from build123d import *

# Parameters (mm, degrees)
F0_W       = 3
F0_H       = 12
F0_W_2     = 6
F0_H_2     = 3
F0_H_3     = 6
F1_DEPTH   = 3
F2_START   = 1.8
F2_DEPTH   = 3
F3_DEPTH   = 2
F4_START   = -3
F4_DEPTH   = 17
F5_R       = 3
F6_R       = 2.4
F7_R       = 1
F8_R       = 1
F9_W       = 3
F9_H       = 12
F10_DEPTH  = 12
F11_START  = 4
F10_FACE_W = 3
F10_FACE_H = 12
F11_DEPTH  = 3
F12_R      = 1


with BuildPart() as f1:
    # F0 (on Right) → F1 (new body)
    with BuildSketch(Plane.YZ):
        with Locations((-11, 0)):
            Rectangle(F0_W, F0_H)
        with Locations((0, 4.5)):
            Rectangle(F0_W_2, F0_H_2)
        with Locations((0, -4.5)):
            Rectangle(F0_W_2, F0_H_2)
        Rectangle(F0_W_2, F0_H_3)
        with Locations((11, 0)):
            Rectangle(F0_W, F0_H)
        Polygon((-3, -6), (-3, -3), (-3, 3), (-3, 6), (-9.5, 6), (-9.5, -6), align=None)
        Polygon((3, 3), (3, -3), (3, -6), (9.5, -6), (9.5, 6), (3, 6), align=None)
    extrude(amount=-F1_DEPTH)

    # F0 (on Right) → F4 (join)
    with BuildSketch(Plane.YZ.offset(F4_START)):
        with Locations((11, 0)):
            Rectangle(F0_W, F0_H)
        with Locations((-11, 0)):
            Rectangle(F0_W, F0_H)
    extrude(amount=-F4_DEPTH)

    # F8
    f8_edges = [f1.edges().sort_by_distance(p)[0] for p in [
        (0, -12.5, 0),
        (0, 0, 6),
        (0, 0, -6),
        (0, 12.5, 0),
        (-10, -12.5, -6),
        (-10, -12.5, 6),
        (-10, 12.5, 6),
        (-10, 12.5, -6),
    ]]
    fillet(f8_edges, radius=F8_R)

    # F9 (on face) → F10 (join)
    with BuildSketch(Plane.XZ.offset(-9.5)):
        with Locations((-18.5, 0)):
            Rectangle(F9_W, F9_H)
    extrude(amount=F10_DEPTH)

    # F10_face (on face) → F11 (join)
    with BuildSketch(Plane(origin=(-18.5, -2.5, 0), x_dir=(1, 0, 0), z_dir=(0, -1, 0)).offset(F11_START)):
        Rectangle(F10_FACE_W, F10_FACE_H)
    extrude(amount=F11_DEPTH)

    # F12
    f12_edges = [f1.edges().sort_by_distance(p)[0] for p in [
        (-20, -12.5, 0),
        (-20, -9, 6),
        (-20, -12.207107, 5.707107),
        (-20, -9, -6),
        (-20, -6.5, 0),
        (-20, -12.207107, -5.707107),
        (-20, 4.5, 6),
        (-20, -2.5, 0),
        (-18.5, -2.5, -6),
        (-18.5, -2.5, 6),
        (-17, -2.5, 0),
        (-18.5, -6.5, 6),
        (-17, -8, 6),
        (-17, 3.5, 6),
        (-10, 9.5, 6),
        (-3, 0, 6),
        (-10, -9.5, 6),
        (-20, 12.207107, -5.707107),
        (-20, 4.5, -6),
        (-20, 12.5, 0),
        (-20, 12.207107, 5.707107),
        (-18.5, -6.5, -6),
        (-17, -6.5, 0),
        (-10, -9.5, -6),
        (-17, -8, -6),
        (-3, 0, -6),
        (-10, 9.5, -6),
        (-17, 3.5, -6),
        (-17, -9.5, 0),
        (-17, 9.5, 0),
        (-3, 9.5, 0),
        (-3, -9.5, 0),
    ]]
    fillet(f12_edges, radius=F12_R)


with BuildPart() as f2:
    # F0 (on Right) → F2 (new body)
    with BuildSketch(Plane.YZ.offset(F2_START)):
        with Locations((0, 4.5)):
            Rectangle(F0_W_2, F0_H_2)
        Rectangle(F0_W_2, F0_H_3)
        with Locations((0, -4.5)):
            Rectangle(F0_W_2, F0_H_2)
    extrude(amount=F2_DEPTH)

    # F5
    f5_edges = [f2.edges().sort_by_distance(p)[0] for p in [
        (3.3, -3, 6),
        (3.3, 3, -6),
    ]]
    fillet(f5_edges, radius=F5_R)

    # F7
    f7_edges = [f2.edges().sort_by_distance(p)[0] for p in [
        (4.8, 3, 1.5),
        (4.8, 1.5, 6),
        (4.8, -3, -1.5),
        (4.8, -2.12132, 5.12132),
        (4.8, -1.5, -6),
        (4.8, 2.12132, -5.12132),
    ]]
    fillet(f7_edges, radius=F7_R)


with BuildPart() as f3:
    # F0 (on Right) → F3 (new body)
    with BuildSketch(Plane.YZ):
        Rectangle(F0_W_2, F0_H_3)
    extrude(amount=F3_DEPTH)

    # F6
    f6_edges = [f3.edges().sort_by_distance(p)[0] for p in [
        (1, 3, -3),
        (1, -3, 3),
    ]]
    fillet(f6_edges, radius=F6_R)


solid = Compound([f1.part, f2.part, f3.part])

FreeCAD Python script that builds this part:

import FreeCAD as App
import Part
import Sketcher

V = App.Vector
Q = App.Units.Quantity


def edges_at(feature, points):
    """Names of the edges that pass closest to the given points."""
    edges = feature.Shape.Edges
    near = lambda p: min(range(len(edges)), key=lambda i: edges[i].distToShape(Part.Vertex(*p))[0])
    return sorted({f"Edge{near(p) + 1}" for p in points})

doc = App.newDocument("Part")
body = doc.addObject("PartDesign::Body", "Body")

# Sketch on YZ plane
sketch1 = body.newObject("Sketcher::SketchObject", "Sketch")
sketch1.AttachmentSupport = (doc.getObject("YZ_Plane"), [""])
sketch1.MapMode = "FlatFace"
sketch1.addGeometry(Part.LineSegment(V(-12, 6, 0), V(-12, -6, 0)), False)
sketch1.addGeometry(Part.LineSegment(V(-12, -6, 0), V(12, -6, 0)), False)
sketch1.addGeometry(Part.LineSegment(V(12, -6, 0), V(12, 6, 0)), False)
sketch1.addGeometry(Part.LineSegment(V(12, 6, 0), V(-12, 6, 0)), False)
sketch1.addConstraint(Sketcher.Constraint("Coincident", 0, 2, 1, 1))
sketch1.addConstraint(Sketcher.Constraint("Coincident", 1, 2, 2, 1))
sketch1.addConstraint(Sketcher.Constraint("Coincident", 2, 2, 3, 1))
sketch1.addConstraint(Sketcher.Constraint("Coincident", 3, 2, 0, 1))
sketch1.addConstraint(Sketcher.Constraint("Vertical", 0))
sketch1.addConstraint(Sketcher.Constraint("Horizontal", 1))
sketch1.addConstraint(Sketcher.Constraint("Vertical", 2))
sketch1.addConstraint(Sketcher.Constraint("Horizontal", 3))
sketch1.addConstraint(Sketcher.Constraint("Symmetric", 0, 2, 2, 2, -1, 1))
sketch1.addConstraint(Sketcher.Constraint("DistanceX", 1, 1, 1, 2, Q("25 mm")))
sketch1.addConstraint(Sketcher.Constraint("DistanceY", 0, 2, 0, 1, Q("12 mm")))
pad1 = body.newObject("PartDesign::Pad", "Pad")
pad1.Profile = sketch1
pad1.Length = 3
pad1.Reversed = True

# Sketch on YZ plane
sketch2 = body.newObject("Sketcher::SketchObject", "Sketch001")
sketch2.AttachmentSupport = (doc.getObject("YZ_Plane"), [""])
sketch2.MapMode = "FlatFace"
sketch2.AttachmentOffset = App.Placement(V(0, 0, -3), App.Rotation())
sketch2.addGeometry(Part.LineSegment(V(9.5, 6, 0), V(9.5, -6, 0)), False)
sketch2.addGeometry(Part.LineSegment(V(9.5, -6, 0), V(12.5, -6, 0)), False)
sketch2.addGeometry(Part.LineSegment(V(12.5, -6, 0), V(12.5, 6, 0)), False)
sketch2.addGeometry(Part.LineSegment(V(12.5, 6, 0), V(9.5, 6, 0)), False)
sketch2.addGeometry(Part.LineSegment(V(-12.5, 6, 0), V(-12.5, -6, 0)), False)
sketch2.addGeometry(Part.LineSegment(V(-12.5, -6, 0), V(-9.5, -6, 0)), False)
sketch2.addGeometry(Part.LineSegment(V(-9.5, -6, 0), V(-9.5, 6, 0)), False)
sketch2.addGeometry(Part.LineSegment(V(-9.5, 6, 0), V(-12.5, 6, 0)), False)
sketch2.addConstraint(Sketcher.Constraint("Coincident", 0, 2, 1, 1))
sketch2.addConstraint(Sketcher.Constraint("Coincident", 1, 2, 2, 1))
sketch2.addConstraint(Sketcher.Constraint("Coincident", 2, 2, 3, 1))
sketch2.addConstraint(Sketcher.Constraint("Coincident", 3, 2, 0, 1))
sketch2.addConstraint(Sketcher.Constraint("Coincident", 4, 2, 5, 1))
sketch2.addConstraint(Sketcher.Constraint("Coincident", 5, 2, 6, 1))
sketch2.addConstraint(Sketcher.Constraint("Coincident", 6, 2, 7, 1))
sketch2.addConstraint(Sketcher.Constraint("Coincident", 7, 2, 4, 1))
sketch2.addConstraint(Sketcher.Constraint("Vertical", 0))
sketch2.addConstraint(Sketcher.Constraint("Horizontal", 1))
sketch2.addConstraint(Sketcher.Constraint("Vertical", 2))
sketch2.addConstraint(Sketcher.Constraint("Horizontal", 3))
sketch2.addConstraint(Sketcher.Constraint("Vertical", 4))
sketch2.addConstraint(Sketcher.Constraint("Horizontal", 5))
sketch2.addConstraint(Sketcher.Constraint("Vertical", 6))
sketch2.addConstraint(Sketcher.Constraint("Horizontal", 7))
sketch2.addConstraint(Sketcher.Constraint("Symmetric", 2, 2, 4, 2, -1, 1))
sketch2.addConstraint(Sketcher.Constraint("Symmetric", 0, 2, 6, 2, -1, 1))
sketch2.addConstraint(Sketcher.Constraint("Horizontal", 1, 2, 4, 2))
sketch2.addConstraint(Sketcher.Constraint("DistanceX", 1, 1, 1, 2, Q("3 mm")))
sketch2.addConstraint(Sketcher.Constraint("DistanceY", 0, 2, 0, 1, Q("12 mm")))
sketch2.addConstraint(Sketcher.Constraint("DistanceX", 4, 2, 0, 2, Q("22 mm")))
pad2 = body.newObject("PartDesign::Pad", "Pad001")
pad2.Profile = sketch2
pad2.Length = 17
pad2.Reversed = True
doc.recompute()

fillet = body.newObject("PartDesign::Fillet", "Fillet")
fillet.Base = (pad2, edges_at(pad2, [
    (0, -12.5, 0),
    (0, 0, 6),
    (0, 0, -6),
    (0, 12.5, 0),
    (-10, -12.5, -6),
    (-10, -12.5, 6),
    (-10, 12.5, 6),
    (-10, 12.5, -6),
]))
fillet.Radius = 1

# Sketch on XZ plane
sketch3 = body.newObject("Sketcher::SketchObject", "Sketch002")
sketch3.AttachmentSupport = (doc.getObject("XZ_Plane"), [""])
sketch3.MapMode = "FlatFace"
sketch3.AttachmentOffset = App.Placement(V(0, 0, -9.5), App.Rotation())
sketch3.addGeometry(Part.LineSegment(V(-20, 6, 0), V(-20, -6, 0)), False)
sketch3.addGeometry(Part.LineSegment(V(-20, -6, 0), V(-17, -6, 0)), False)
sketch3.addGeometry(Part.LineSegment(V(-17, -6, 0), V(-17, 6, 0)), False)
sketch3.addGeometry(Part.LineSegment(V(-17, 6, 0), V(-20, 6, 0)), False)
sketch3.addConstraint(Sketcher.Constraint("Coincident", 0, 2, 1, 1))
sketch3.addConstraint(Sketcher.Constraint("Coincident", 1, 2, 2, 1))
sketch3.addConstraint(Sketcher.Constraint("Coincident", 2, 2, 3, 1))
sketch3.addConstraint(Sketcher.Constraint("Coincident", 3, 2, 0, 1))
sketch3.addConstraint(Sketcher.Constraint("Vertical", 0))
sketch3.addConstraint(Sketcher.Constraint("Horizontal", 1))
sketch3.addConstraint(Sketcher.Constraint("Vertical", 2))
sketch3.addConstraint(Sketcher.Constraint("Horizontal", 3))
sketch3.addConstraint(Sketcher.Constraint("DistanceX", 1, 1, 1, 2, Q("3 mm")))
sketch3.addConstraint(Sketcher.Constraint("DistanceY", 0, 2, 0, 1, Q("12 mm")))
sketch3.addConstraint(Sketcher.Constraint("DistanceX", 0, 2, -1, 1, Q("20 mm")))
sketch3.addConstraint(Sketcher.Constraint("DistanceY", 0, 2, -1, 1, Q("6 mm")))
pad3 = body.newObject("PartDesign::Pad", "Pad002")
pad3.Profile = sketch3
pad3.Length = 12

# Sketch on XZ plane
sketch4 = body.newObject("Sketcher::SketchObject", "Sketch003")
sketch4.AttachmentSupport = (doc.getObject("XZ_Plane"), [""])
sketch4.MapMode = "FlatFace"
sketch4.AttachmentOffset = App.Placement(V(0, 0, 6.5), App.Rotation())
sketch4.addGeometry(Part.LineSegment(V(-20, 6, 0), V(-20, -6, 0)), False)
sketch4.addGeometry(Part.LineSegment(V(-20, -6, 0), V(-17, -6, 0)), False)
sketch4.addGeometry(Part.LineSegment(V(-17, -6, 0), V(-17, 6, 0)), False)
sketch4.addGeometry(Part.LineSegment(V(-17, 6, 0), V(-20, 6, 0)), False)
sketch4.addConstraint(Sketcher.Constraint("Coincident", 0, 2, 1, 1))
sketch4.addConstraint(Sketcher.Constraint("Coincident", 1, 2, 2, 1))
sketch4.addConstraint(Sketcher.Constraint("Coincident", 2, 2, 3, 1))
sketch4.addConstraint(Sketcher.Constraint("Coincident", 3, 2, 0, 1))
sketch4.addConstraint(Sketcher.Constraint("Vertical", 0))
sketch4.addConstraint(Sketcher.Constraint("Horizontal", 1))
sketch4.addConstraint(Sketcher.Constraint("Vertical", 2))
sketch4.addConstraint(Sketcher.Constraint("Horizontal", 3))
sketch4.addConstraint(Sketcher.Constraint("DistanceX", 1, 1, 1, 2, Q("3 mm")))
sketch4.addConstraint(Sketcher.Constraint("DistanceY", 0, 2, 0, 1, Q("12 mm")))
sketch4.addConstraint(Sketcher.Constraint("DistanceX", 0, 2, -1, 1, Q("20 mm")))
sketch4.addConstraint(Sketcher.Constraint("DistanceY", 0, 2, -1, 1, Q("6 mm")))
pad4 = body.newObject("PartDesign::Pad", "Pad003")
pad4.Profile = sketch4
pad4.Length = 3
doc.recompute()

fillet2 = body.newObject("PartDesign::Fillet", "Fillet001")
fillet2.Base = (pad4, edges_at(pad4, [
    (-20, -12.5, 0),
    (-20, -9, 6),
    (-20, -12.207, 5.707),
    (-20, -9, -6),
    (-20, -6.5, 0),
    (-20, -12.207, -5.707),
    (-20, 4.5, 6),
    (-20, -2.5, 0),
    (-18.5, -2.5, -6),
    (-18.5, -2.5, 6),
    (-17, -2.5, 0),
    (-18.5, -6.5, 6),
    (-17, -8, 6),
    (-17, 3.5, 6),
    (-10, 9.5, 6),
    (-3, 0, 6),
    (-10, -9.5, 6),
    (-20, 12.207, -5.707),
    (-20, 4.5, -6),
    (-20, 12.5, 0),
    (-20, 12.207, 5.707),
    (-18.5, -6.5, -6),
    (-17, -6.5, 0),
    (-10, -9.5, -6),
    (-17, -8, -6),
    (-3, 0, -6),
    (-10, 9.5, -6),
    (-17, 3.5, -6),
    (-17, -9.5, 0),
    (-17, 9.5, 0),
    (-3, 9.5, 0),
    (-3, -9.5, 0),
]))
fillet2.Radius = 1
body2 = doc.addObject("PartDesign::Body", "Body001")

# Sketch on YZ plane
sketch5 = body2.newObject("Sketcher::SketchObject", "Sketch004")
sketch5.AttachmentSupport = (doc.getObject("YZ_Plane001"), [""])
sketch5.MapMode = "FlatFace"
sketch5.AttachmentOffset = App.Placement(V(0, 0, 1.8), App.Rotation())
sketch5.addGeometry(Part.LineSegment(V(-3, 6, 0), V(-3, -6, 0)), False)
sketch5.addGeometry(Part.LineSegment(V(-3, -6, 0), V(3, -6, 0)), False)
sketch5.addGeometry(Part.LineSegment(V(3, -6, 0), V(3, 6, 0)), False)
sketch5.addGeometry(Part.LineSegment(V(3, 6, 0), V(-3, 6, 0)), False)
sketch5.addConstraint(Sketcher.Constraint("Coincident", 0, 2, 1, 1))
sketch5.addConstraint(Sketcher.Constraint("Coincident", 1, 2, 2, 1))
sketch5.addConstraint(Sketcher.Constraint("Coincident", 2, 2, 3, 1))
sketch5.addConstraint(Sketcher.Constraint("Coincident", 3, 2, 0, 1))
sketch5.addConstraint(Sketcher.Constraint("Vertical", 0))
sketch5.addConstraint(Sketcher.Constraint("Horizontal", 1))
sketch5.addConstraint(Sketcher.Constraint("Vertical", 2))
sketch5.addConstraint(Sketcher.Constraint("Horizontal", 3))
sketch5.addConstraint(Sketcher.Constraint("Symmetric", 0, 2, 2, 2, -1, 1))
sketch5.addConstraint(Sketcher.Constraint("DistanceX", 1, 1, 1, 2, Q("6 mm")))
sketch5.addConstraint(Sketcher.Constraint("DistanceY", 0, 2, 0, 1, Q("12 mm")))
pad5 = body2.newObject("PartDesign::Pad", "Pad004")
pad5.Profile = sketch5
pad5.Length = 3
doc.recompute()

fillet3 = body2.newObject("PartDesign::Fillet", "Fillet002")
fillet3.Base = (pad5, edges_at(pad5, [(3.3, -3, 6), (3.3, 3, -6)]))
fillet3.Radius = 3
doc.recompute()

fillet4 = body2.newObject("PartDesign::Fillet", "Fillet003")
fillet4.Base = (fillet3, edges_at(fillet3, [
    (4.8, 3, 1.5),
    (4.8, 1.5, 6),
    (4.8, -3, -1.5),
    (4.8, -2.121, 5.121),
    (4.8, -1.5, -6),
    (4.8, 2.121, -5.121),
]))
fillet4.Radius = 1
body3 = doc.addObject("PartDesign::Body", "Body002")

# Sketch on YZ plane
sketch6 = body3.newObject("Sketcher::SketchObject", "Sketch005")
sketch6.AttachmentSupport = (doc.getObject("YZ_Plane002"), [""])
sketch6.MapMode = "FlatFace"
sketch6.addGeometry(Part.LineSegment(V(-3, 3, 0), V(-3, -3, 0)), False)
sketch6.addGeometry(Part.LineSegment(V(-3, -3, 0), V(3, -3, 0)), False)
sketch6.addGeometry(Part.LineSegment(V(3, -3, 0), V(3, 3, 0)), False)
sketch6.addGeometry(Part.LineSegment(V(3, 3, 0), V(-3, 3, 0)), False)
sketch6.addConstraint(Sketcher.Constraint("Coincident", 0, 2, 1, 1))
sketch6.addConstraint(Sketcher.Constraint("Coincident", 1, 2, 2, 1))
sketch6.addConstraint(Sketcher.Constraint("Coincident", 2, 2, 3, 1))
sketch6.addConstraint(Sketcher.Constraint("Coincident", 3, 2, 0, 1))
sketch6.addConstraint(Sketcher.Constraint("Vertical", 0))
sketch6.addConstraint(Sketcher.Constraint("Horizontal", 1))
sketch6.addConstraint(Sketcher.Constraint("Vertical", 2))
sketch6.addConstraint(Sketcher.Constraint("Horizontal", 3))
sketch6.addConstraint(Sketcher.Constraint("Symmetric", 0, 2, 2, 2, -1, 1))
sketch6.addConstraint(Sketcher.Constraint("Equal", 3, 0))
sketch6.addConstraint(Sketcher.Constraint("DistanceX", 1, 1, 1, 2, Q("6 mm")))
pad6 = body3.newObject("PartDesign::Pad", "Pad005")
pad6.Profile = sketch6
pad6.Length = 2
doc.recompute()

fillet5 = body3.newObject("PartDesign::Fillet", "Fillet004")
fillet5.Base = (pad6, edges_at(pad6, [(1, 3, -3), (1, -3, 3)]))
fillet5.Radius = 2.4

doc.recompute()
